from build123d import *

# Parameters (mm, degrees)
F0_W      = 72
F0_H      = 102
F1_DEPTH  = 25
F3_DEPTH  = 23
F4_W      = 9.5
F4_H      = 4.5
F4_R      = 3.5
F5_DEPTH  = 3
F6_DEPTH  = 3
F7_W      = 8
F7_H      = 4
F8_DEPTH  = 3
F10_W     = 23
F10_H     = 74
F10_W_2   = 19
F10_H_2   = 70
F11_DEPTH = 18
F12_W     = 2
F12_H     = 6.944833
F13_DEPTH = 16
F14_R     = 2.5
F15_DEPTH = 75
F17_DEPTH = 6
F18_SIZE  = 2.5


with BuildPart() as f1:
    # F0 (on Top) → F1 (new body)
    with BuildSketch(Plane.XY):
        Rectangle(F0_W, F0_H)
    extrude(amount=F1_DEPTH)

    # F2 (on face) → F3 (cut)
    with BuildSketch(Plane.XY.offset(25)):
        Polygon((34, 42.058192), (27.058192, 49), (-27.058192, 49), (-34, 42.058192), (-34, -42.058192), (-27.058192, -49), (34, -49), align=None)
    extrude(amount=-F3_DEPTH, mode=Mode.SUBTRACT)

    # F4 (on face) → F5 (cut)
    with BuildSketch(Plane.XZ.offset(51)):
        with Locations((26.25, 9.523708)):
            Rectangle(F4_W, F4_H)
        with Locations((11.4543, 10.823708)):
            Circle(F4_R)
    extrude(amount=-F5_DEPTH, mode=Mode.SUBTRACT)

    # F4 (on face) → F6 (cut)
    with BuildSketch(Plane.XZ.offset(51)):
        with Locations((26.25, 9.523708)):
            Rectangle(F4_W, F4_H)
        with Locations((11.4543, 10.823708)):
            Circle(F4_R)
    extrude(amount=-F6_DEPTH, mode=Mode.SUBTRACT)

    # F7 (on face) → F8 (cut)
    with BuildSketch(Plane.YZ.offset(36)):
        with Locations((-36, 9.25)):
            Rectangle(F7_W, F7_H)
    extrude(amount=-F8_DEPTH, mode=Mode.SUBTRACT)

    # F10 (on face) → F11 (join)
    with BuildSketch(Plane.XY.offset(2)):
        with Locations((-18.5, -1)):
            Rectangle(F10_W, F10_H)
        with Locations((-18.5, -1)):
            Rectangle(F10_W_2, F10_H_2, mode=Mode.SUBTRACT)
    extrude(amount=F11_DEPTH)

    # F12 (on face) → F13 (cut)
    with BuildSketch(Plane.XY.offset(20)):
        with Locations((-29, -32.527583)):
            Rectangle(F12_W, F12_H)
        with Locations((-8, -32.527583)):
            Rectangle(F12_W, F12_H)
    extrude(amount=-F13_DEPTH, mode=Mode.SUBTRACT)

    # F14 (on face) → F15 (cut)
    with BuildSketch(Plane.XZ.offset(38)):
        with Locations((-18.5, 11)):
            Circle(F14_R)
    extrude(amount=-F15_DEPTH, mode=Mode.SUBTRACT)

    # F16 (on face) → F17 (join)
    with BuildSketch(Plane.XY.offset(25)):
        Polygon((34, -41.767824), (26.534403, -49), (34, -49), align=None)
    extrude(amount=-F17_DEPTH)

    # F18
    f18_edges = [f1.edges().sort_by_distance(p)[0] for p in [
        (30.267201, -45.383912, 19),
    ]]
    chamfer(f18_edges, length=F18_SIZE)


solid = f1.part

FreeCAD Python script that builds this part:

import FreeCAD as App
import Part
import Sketcher
Q = App.Units.Quantity


def edges_at(feature, points):
    """Names of the edges that pass closest to the given points."""
    edges = feature.Shape.Edges
    near = lambda p: min(range(len(edges)), key=lambda i: edges[i].distToShape(Part.Vertex(*p))[0])
    return sorted({f"Edge{near(p) + 1}" for p in points})

doc = App.newDocument("Part")
params = doc.addObject("Spreadsheet::Sheet", "Params")
for row, (alias, value) in enumerate([
    ("sketch1_width", "72 mm"),
    ("sketch1_height", "102 mm"),
    ("pad1_length", "25 mm"),
    ("pocket1_length", "23 mm"),
    ("sketch3_diameter", "7 mm"),
    ("sketch3_width", "9.5 mm"),
    ("sketch3_height", "4.5 mm"),
    ("pocket2_length", "3 mm"),
    ("sketch4_diameter", "7 mm"),
    ("sketch4_width", "9.5 mm"),
    ("sketch4_height", "4.5 mm"),
    ("pocket3_length", "3 mm"),
    ("sketch5_width", "8 mm"),
    ("sketch5_height", "4 mm"),
    ("pocket4_length", "3 mm"),
    ("sketch6_width", "23 mm"),
    ("sketch6_width2", "19 mm"),
    ("sketch6_height", "74 mm"),
    ("sketch6_height2", "70 mm"),
    ("pad2_length", "18 mm"),
    ("sketch7_width", "2 mm"),
    ("pocket5_length", "16 mm"),
    ("sketch8_diameter", "5 mm"),
    ("pocket6_length", "75 mm"),
    ("pad3_length", "6 mm"),
    ("chamfer_size", "2.5 mm"),
], start=1):
    params.set(f"A{row}", alias)
    params.set(f"B{row}", "=" + value)
    params.setAlias(f"B{row}", alias)

body = doc.addObject("PartDesign::Body", "Body")

sketch1 = body.newObject("Sketcher::SketchObject", "Sketch")
sketch1.AttachmentSupport = (doc.getObject("XY_Plane"), [""])
sketch1.MapMode = "FlatFace"
sketch1.addGeometry(Part.LineSegment(App.Vector(-36, 51, 0), App.Vector(-36, -51, 0)), False)
sketch1.addGeometry(Part.LineSegment(App.Vector(-36, -51, 0), App.Vector(36, -51, 0)), False)
sketch1.addGeometry(Part.LineSegment(App.Vector(36, -51, 0), App.Vector(36, 51, 0)), False)
sketch1.addGeometry(Part.LineSegment(App.Vector(36, 51, 0), App.Vector(-36, 51, 0)), False)
sketch1.addConstraint(Sketcher.Constraint("Coincident", 0, 2, 1, 1))
sketch1.addConstraint(Sketcher.Constraint("Coincident", 1, 2, 2, 1))
sketch1.addConstraint(Sketcher.Constraint("Coincident", 2, 2, 3, 1))
sketch1.addConstraint(Sketcher.Constraint("Coincident", 3, 2, 0, 1))
sketch1.addConstraint(Sketcher.Constraint("Vertical", 0))
sketch1.addConstraint(Sketcher.Constraint("Horizontal", 1))
sketch1.addConstraint(Sketcher.Constraint("Vertical", 2))
sketch1.addConstraint(Sketcher.Constraint("Horizontal", 3))
sketch1.addConstraint(Sketcher.Constraint("Symmetric", 0, 2, 2, 2, -1, 1))
sketch1.addConstraint(Sketcher.Constraint("DistanceX", 1, 1, 1, 2, Q("72 mm")))
sketch1.addConstraint(Sketcher.Constraint("DistanceY", 0, 2, 0, 1, Q("102 mm")))
sketch1.setExpression("Constraints[9]", "Params.sketch1_width")
sketch1.setExpression("Constraints[10]", "Params.sketch1_height")
pad1 = body.newObject("PartDesign::Pad", "Pad")
pad1.Profile = sketch1
pad1.setExpression("Length", "Params.pad1_length")

sketch2 = body.newObject("Sketcher::SketchObject", "Sketch001")
sketch2.AttachmentSupport = (doc.getObject("XY_Plane"), [""])
sketch2.MapMode = "FlatFace"
sketch2.AttachmentOffset = App.Placement(App.Vector(0, 0, 25), App.Rotation())
sketch2.addGeometry(Part.LineSegment(App.Vector(34, 42, 0), App.Vector(27, 49, 0)), False)
sketch2.addGeometry(Part.LineSegment(App.Vector(27, 49, 0), App.Vector(-27, 49, 0)), False)
sketch2.addGeometry(Part.LineSegment(App.Vector(-27, 49, 0), App.Vector(-34, 42, 0)), False)
sketch2.addGeometry(Part.LineSegment(App.Vector(-34, 42, 0), App.Vector(-34, -42, 0)), False)
sketch2.addGeometry(Part.LineSegment(App.Vector(-34, -42, 0), App.Vector(-27, -49, 0)), False)
sketch2.addGeometry(Part.LineSegment(App.Vector(-27, -49, 0), App.Vector(34, -49, 0)), False)
sketch2.addGeometry(Part.LineSegment(App.Vector(34, -49, 0), App.Vector(34, 42, 0)), False)
sketch2.addConstraint(Sketcher.Constraint("Coincident", 0, 2, 1, 1))
sketch2.addConstraint(Sketcher.Constraint("Coincident", 1, 2, 2, 1))
sketch2.addConstraint(Sketcher.Constraint("Coincident", 2, 2, 3, 1))
sketch2.addConstraint(Sketcher.Constraint("Coincident", 3, 2, 4, 1))
sketch2.addConstraint(Sketcher.Constraint("Coincident", 4, 2, 5, 1))
sketch2.addConstraint(Sketcher.Constraint("Coincident", 5, 2, 6, 1))
sketch2.addConstraint(Sketcher.Constraint("Coincident", 6, 2, 0, 1))
sketch2.addConstraint(Sketcher.Constraint("Horizontal", 1))
sketch2.addConstraint(Sketcher.Constraint("Vertical", 3))
sketch2.addConstraint(Sketcher.Constraint("Horizontal", 5))
sketch2.addConstraint(Sketcher.Constraint("Vertical", 6))
sketch2.addConstraint(Sketcher.Constraint("Symmetric", 0, 2, 4, 2, -1, 1))
sketch2.addConstraint(Sketcher.Constraint("Symmetric", 3, 2, 6, 2, -1, 1))
sketch2.addConstraint(Sketcher.Constraint("Perpendicular", 0, 2))
sketch2.addConstraint(Sketcher.Constraint("Horizontal", 2, 2, 6, 2))
sketch2.addConstraint(Sketcher.Constraint("Vertical", 1, 2, 4, 2))
sketch2.addConstraint(Sketcher.Constraint("DistanceY", -1, 1, 0, 2, Q("49 mm")))
sketch2.addConstraint(Sketcher.Constraint("DistanceX", 2, 2, -1, 1, Q("34 mm")))
sketch2.addConstraint(Sketcher.Constraint("Distance", 0, Q("9.817199 mm")))
pocket1 = body.newObject("PartDesign::Pocket", "Pocket")
pocket1.Profile = sketch2
pocket1.setExpression("Length", "Params.pocket1_length")

sketch3 = body.newObject("Sketcher::SketchObject", "Sketch002")
sketch3.AttachmentSupport = (doc.getObject("XZ_Plane"), [""])
sketch3.MapMode = "FlatFace"
sketch3.AttachmentOffset = App.Placement(App.Vector(0, 0, 51), App.Rotation())
sketch3.addGeometry(Part.LineSegment(App.Vector(21.5, 11.8, 0), App.Vector(21.5, 7.3, 0)), False)
sketch3.addGeometry(Part.LineSegment(App.Vector(21.5, 7.3, 0), App.Vector(31, 7.3, 0)), False)
sketch3.addGeometry(Part.LineSegment(App.Vector(31, 7.3, 0), App.Vector(31, 11.8, 0)), False)
sketch3.addGeometry(Part.LineSegment(App.Vector(31, 11.8, 0), App.Vector(21.5, 11.8, 0)), False)
sketch3.addGeometry(Part.Circle(App.Vector(11.5, 10.8, 0), App.Vector(0, 0, 1), 3.5), False)
sketch3.addConstraint(Sketcher.Constraint("Coincident", 0, 2, 1, 1))
sketch3.addConstraint(Sketcher.Constraint("Coincident", 1, 2, 2, 1))
sketch3.addConstraint(Sketcher.Constraint("Coincident", 2, 2, 3, 1))
sketch3.addConstraint(Sketcher.Constraint("Coincident", 3, 2, 0, 1))
sketch3.addConstraint(Sketcher.Constraint("Vertical", 0))
sketch3.addConstraint(Sketcher.Constraint("Horizontal", 1))
sketch3.addConstraint(Sketcher.Constraint("Vertical", 2))
sketch3.addConstraint(Sketcher.Constraint("Horizontal", 3))
sketch3.addConstraint(Sketcher.Constraint("Diameter", 4, Q("7 mm")))
sketch3.addConstraint(Sketcher.Constraint("DistanceX", 1, 1, 1, 2, Q("9.5 mm")))
sketch3.addConstraint(Sketcher.Constraint("DistanceY", 0, 2, 0, 1, Q("4.5 mm")))
sketch3.addConstraint(Sketcher.Constraint("DistanceX", -1, 1, 1, 2, Q("31 mm")))
sketch3.addConstraint(Sketcher.Constraint("DistanceY", 0, 2, 4, 3, Q("3.55 mm")))
sketch3.addConstraint(Sketcher.Constraint("DistanceX", -1, 1, 4, 3, Q("11.4543 mm")))
sketch3.addConstraint(Sketcher.Constraint("DistanceY", -1, 1, 4, 3, Q("10.823708 mm")))
sketch3.setExpression("Constraints[8]", "Params.sketch3_diameter")
sketch3.setExpression("Constraints[9]", "Params.sketch3_width")
sketch3.setExpression("Constraints[10]", "Params.sketch3_height")
pocket2 = body.newObject("PartDesign::Pocket", "Pocket001")
pocket2.Profile = sketch3
pocket2.setExpression("Length", "Params.pocket2_length")

sketch4 = body.newObject("Sketcher::SketchObject", "Sketch003")
sketch4.AttachmentSupport = (doc.getObject("XZ_Plane"), [""])
sketch4.MapMode = "FlatFace"
sketch4.AttachmentOffset = App.Placement(App.Vector(0, 0, 51), App.Rotation())
sketch4.addGeometry(Part.LineSegment(App.Vector(21.5, 11.8, 0), App.Vector(21.5, 7.3, 0)), False)
sketch4.addGeometry(Part.LineSegment(App.Vector(21.5, 7.3, 0), App.Vector(31, 7.3, 0)), False)
sketch4.addGeometry(Part.LineSegment(App.Vector(31, 7.3, 0), App.Vector(31, 11.8, 0)), False)
sketch4.addGeometry(Part.LineSegment(App.Vector(31, 11.8, 0), App.Vector(21.5, 11.8, 0)), False)
sketch4.addGeometry(Part.Circle(App.Vector(11.5, 10.8, 0), App.Vector(0, 0, 1), 3.5), False)
sketch4.addConstraint(Sketcher.Constraint("Coincident", 0, 2, 1, 1))
sketch4.addConstraint(Sketcher.Constraint("Coincident", 1, 2, 2, 1))
sketch4.addConstraint(Sketcher.Constraint("Coincident", 2, 2, 3, 1))
sketch4.addConstraint(Sketcher.Constraint("Coincident", 3, 2, 0, 1))
sketch4.addConstraint(Sketcher.Constraint("Vertical", 0))
sketch4.addConstraint(Sketcher.Constraint("Horizontal", 1))
sketch4.addConstraint(Sketcher.Constraint("Vertical", 2))
sketch4.addConstraint(Sketcher.Constraint("Horizontal", 3))
sketch4.addConstraint(Sketcher.Constraint("Diameter", 4, Q("7 mm")))
sketch4.addConstraint(Sketcher.Constraint("DistanceX", 1, 1, 1, 2, Q("9.5 mm")))
sketch4.addConstraint(Sketcher.Constraint("DistanceY", 0, 2, 0, 1, Q("4.5 mm")))
sketch4.addConstraint(Sketcher.Constraint("DistanceX", -1, 1, 1, 2, Q("31 mm")))
sketch4.addConstraint(Sketcher.Constraint("DistanceY", 0, 2, 4, 3, Q("3.55 mm")))
sketch4.addConstraint(Sketcher.Constraint("DistanceX", -1, 1, 4, 3, Q("11.4543 mm")))
sketch4.addConstraint(Sketcher.Constraint("DistanceY", -1, 1, 4, 3, Q("10.823708 mm")))
sketch4.setExpression("Constraints[8]", "Params.sketch4_diameter")
sketch4.setExpression("Constraints[9]", "Params.sketch4_width")
sketch4.setExpression("Constraints[10]", "Params.sketch4_height")
pocket3 = body.newObject("PartDesign::Pocket", "Pocket002")
pocket3.Profile = sketch4
pocket3.setExpression("Length", "Params.pocket3_length")

sketch5 = body.newObject("Sketcher::SketchObject", "Sketch004")
sketch5.AttachmentSupport = (doc.getObject("YZ_Plane"), [""])
sketch5.MapMode = "FlatFace"
sketch5.AttachmentOffset = App.Placement(App.Vector(0, 0, 36), App.Rotation())
sketch5.addGeometry(Part.LineSegment(App.Vector(-40, 11.2, 0), App.Vector(-40, 7.2, 0)), False)
sketch5.addGeometry(Part.LineSegment(App.Vector(-40, 7.2, 0), App.Vector(-32, 7.2, 0)), False)
sketch5.addGeometry(Part.LineSegment(App.Vector(-32, 7.2, 0), App.Vector(-32, 11.2, 0)), False)
sketch5.addGeometry(Part.LineSegment(App.Vector(-32, 11.2, 0), App.Vector(-40, 11.2, 0)), False)
sketch5.addConstraint(Sketcher.Constraint("Coincident", 0, 2, 1, 1))
sketch5.addConstraint(Sketcher.Constraint("Coincident", 1, 2, 2, 1))
sketch5.addConstraint(Sketcher.Constraint("Coincident", 2, 2, 3, 1))
sketch5.addConstraint(Sketcher.Constraint("Coincident", 3, 2, 0, 1))
sketch5.addConstraint(Sketcher.Constraint("Vertical", 0))
sketch5.addConstraint(Sketcher.Constraint("Horizontal", 1))
sketch5.addConstraint(Sketcher.Constraint("Vertical", 2))
sketch5.addConstraint(Sketcher.Constraint("Horizontal", 3))
sketch5.addConstraint(Sketcher.Constraint("DistanceX", 1, 1, 1, 2, Q("8 mm")))
sketch5.addConstraint(Sketcher.Constraint("DistanceY", 0, 2, 0, 1, Q("4 mm")))
sketch5.addConstraint(Sketcher.Constraint("DistanceX", 0, 2, -1, 1, Q("40 mm")))
sketch5.addConstraint(Sketcher.Constraint("DistanceY", -1, 1, 0, 2, Q("7.25 mm")))
sketch5.setExpression("Constraints[8]", "Params.sketch5_width")
sketch5.setExpression("Constraints[9]", "Params.sketch5_height")
pocket4 = body.newObject("PartDesign::Pocket", "Pocket003")
pocket4.Profile = sketch5
pocket4.setExpression("Length", "Params.pocket4_length")

sketch6 = body.newObject("Sketcher::SketchObject", "Sketch005")
sketch6.AttachmentSupport = (doc.getObject("XY_Plane"), [""])
sketch6.MapMode = "FlatFace"
sketch6.AttachmentOffset = App.Placement(App.Vector(0, 0, 2), App.Rotation())
sketch6.addGeometry(Part.LineSegment(App.Vector(-30, 36, 0), App.Vector(-30, -38, 0)), False)
sketch6.addGeometry(Part.LineSegment(App.Vector(-30, -38, 0), App.Vector(-7, -38, 0)), False)
sketch6.addGeometry(Part.LineSegment(App.Vector(-7, -38, 0), App.Vector(-7, 36, 0)), False)
sketch6.addGeometry(Part.LineSegment(App.Vector(-7, 36, 0), App.Vector(-30, 36, 0)), False)
sketch6.addGeometry(Part.LineSegment(App.Vector(-9, -36, 0), App.Vector(-28, -36, 0)), False)
sketch6.addGeometry(Part.LineSegment(App.Vector(-28, -36, 0), App.Vector(-28, 34, 0)), False)
sketch6.addGeometry(Part.LineSegment(App.Vector(-28, 34, 0), App.Vector(-9, 34, 0)), False)
sketch6.addGeometry(Part.LineSegment(App.Vector(-9, 34, 0), App.Vector(-9, -36, 0)), False)
sketch6.addConstraint(Sketcher.Constraint("Coincident", 0, 2, 1, 1))
sketch6.addConstraint(Sketcher.Constraint("Coincident", 1, 2, 2, 1))
sketch6.addConstraint(Sketcher.Constraint("Coincident", 2, 2, 3, 1))
sketch6.addConstraint(Sketcher.Constraint("Coincident", 3, 2, 0, 1))
sketch6.addConstraint(Sketcher.Constraint("Coincident", 4, 2, 5, 1))
sketch6.addConstraint(Sketcher.Constraint("Coincident", 5, 2, 6, 1))
sketch6.addConstraint(Sketcher.Constraint("Coincident", 6, 2, 7, 1))
sketch6.addConstraint(Sketcher.Constraint("Coincident", 7, 2, 4, 1))
sketch6.addConstraint(Sketcher.Constraint("Vertical", 0))
sketch6.addConstraint(Sketcher.Constraint("Horizontal", 1))
sketch6.addConstraint(Sketcher.Constraint("Vertical", 2))
sketch6.addConstraint(Sketcher.Constraint("Horizontal", 3))
sketch6.addConstraint(Sketcher.Constraint("Horizontal", 4))
sketch6.addConstraint(Sketcher.Constraint("Vertical", 5))
sketch6.addConstraint(Sketcher.Constraint("Horizontal", 6))
sketch6.addConstraint(Sketcher.Constraint("Vertical", 7))
sketch6.addConstraint(Sketcher.Constraint("DistanceX", 1, 1, 1, 2, Q("23 mm")))
sketch6.addConstraint(Sketcher.Constraint("DistanceX", 4, 2, 4, 1, Q("19 mm")))
sketch6.addConstraint(Sketcher.Constraint("DistanceY", 0, 2, 0, 1, Q("74 mm")))
sketch6.addConstraint(Sketcher.Constraint("DistanceY", 5, 1, 5, 2, Q("70 mm")))
sketch6.addConstraint(Sketcher.Constraint("DistanceX", 0, 2, -1, 1, Q("30 mm")))
sketch6.addConstraint(Sketcher.Constraint("DistanceY", 0, 2, -1, 1, Q("38 mm")))
sketch6.addConstraint(Sketcher.Constraint("DistanceX", 4, 2, -1, 1, Q("28 mm")))
sketch6.addConstraint(Sketcher.Constraint("DistanceY", 4, 2, -1, 1, Q("36 mm")))
sketch6.setExpression("Constraints[16]", "Params.sketch6_width")
sketch6.setExpression("Constraints[17]", "Params.sketch6_width2")
sketch6.setExpression("Constraints[18]", "Params.sketch6_height")
sketch6.setExpression("Constraints[19]", "Params.sketch6_height2")
pad2 = body.newObject("PartDesign::Pad", "Pad001")
pad2.Profile = sketch6
pad2.setExpression("Length", "Params.pad2_length")

sketch7 = body.newObject("Sketcher::SketchObject", "Sketch006")
sketch7.AttachmentSupport = (doc.getObject("XY_Plane"), [""])
sketch7.MapMode = "FlatFace"
sketch7.AttachmentOffset = App.Placement(App.Vector(0, 0, 20), App.Rotation())
sketch7.addGeometry(Part.LineSegment(App.Vector(-30, -29.1, 0), App.Vector(-30, -36, 0)), False)
sketch7.addGeometry(Part.LineSegment(App.Vector(-30, -36, 0), App.Vector(-28, -36, 0)), False)
sketch7.addGeometry(Part.LineSegment(App.Vector(-28, -36, 0), App.Vector(-28, -29.1, 0)), False)
sketch7.addGeometry(Part.LineSegment(App.Vector(-28, -29.1, 0), App.Vector(-30, -29.1, 0)), False)
sketch7.addGeometry(Part.LineSegment(App.Vector(-9, -29.1, 0), App.Vector(-9, -36, 0)), False)
sketch7.addGeometry(Part.LineSegment(App.Vector(-9, -36, 0), App.Vector(-7, -36, 0)), False)
sketch7.addGeometry(Part.LineSegment(App.Vector(-7, -36, 0), App.Vector(-7, -29.1, 0)), False)
sketch7.addGeometry(Part.LineSegment(App.Vector(-7, -29.1, 0), App.Vector(-9, -29.1, 0)), False)
sketch7.addConstraint(Sketcher.Constraint("Coincident", 0, 2, 1, 1))
sketch7.addConstraint(Sketcher.Constraint("Coincident", 1, 2, 2, 1))
sketch7.addConstraint(Sketcher.Constraint("Coincident", 2, 2, 3, 1))
sketch7.addConstraint(Sketcher.Constraint("Coincident", 3, 2, 0, 1))
sketch7.addConstraint(Sketcher.Constraint("Coincident", 4, 2, 5, 1))
sketch7.addConstraint(Sketcher.Constraint("Coincident", 5, 2, 6, 1))
sketch7.addConstraint(Sketcher.Constraint("Coincident", 6, 2, 7, 1))
sketch7.addConstraint(Sketcher.Constraint("Coincident", 7, 2, 4, 1))
sketch7.addConstraint(Sketcher.Constraint("Vertical", 0))
sketch7.addConstraint(Sketcher.Constraint("Horizontal", 1))
sketch7.addConstraint(Sketcher.Constraint("Vertical", 2))
sketch7.addConstraint(Sketcher.Constraint("Horizontal", 3))
sketch7.addConstraint(Sketcher.Constraint("Vertical", 4))
sketch7.addConstraint(Sketcher.Constraint("Horizontal", 5))
sketch7.addConstraint(Sketcher.Constraint("Vertical", 6))
sketch7.addConstraint(Sketcher.Constraint("Horizontal", 7))
sketch7.addConstraint(Sketcher.Constraint("Horizontal", 1, 2, 4, 2))
sketch7.addConstraint(Sketcher.Constraint("Horizontal", 3, 2, 6, 2))
sketch7.addConstraint(Sketcher.Constraint("Equal", 3, 5))
sketch7.addConstraint(Sketcher.Constraint("DistanceX", 1, 1, 1, 2, Q("2 mm")))
sketch7.addConstraint(Sketcher.Constraint("DistanceX", 0, 2, -1, 1, Q("30 mm")))
sketch7.addConstraint(Sketcher.Constraint("DistanceY", 0, 2, -1, 1, Q("36 mm")))
sketch7.addConstraint(Sketcher.Constraint("DistanceX", 4, 2, -1, 1, Q("9 mm")))
sketch7.addConstraint(Sketcher.Constraint("DistanceY", 0, 2, 0, 1, Q("6.944833 mm")))
sketch7.setExpression("Constraints[19]", "Params.sketch7_width")
pocket5 = body.newObject("PartDesign::Pocket", "Pocket004")
pocket5.Profile = sketch7
pocket5.setExpression("Length", "Params.pocket5_length")

sketch8 = body.newObject("Sketcher::SketchObject", "Sketch007")
sketch8.AttachmentSupport = (doc.getObject("XZ_Plane"), [""])
sketch8.MapMode = "FlatFace"
sketch8.AttachmentOffset = App.Placement(App.Vector(0, 0, 38), App.Rotation())
sketch8.addGeometry(Part.Circle(App.Vector(-18.5, 11, 0), App.Vector(0, 0, 1), 2.5), False)
sketch8.addConstraint(Sketcher.Constraint("Diameter", 0, Q("5 mm")))
sketch8.addConstraint(Sketcher.Constraint("DistanceY", -1, 1, 0, 3, Q("11 mm")))
sketch8.addConstraint(Sketcher.Constraint("DistanceX", 0, 3, -1, 1, Q("18.5 mm")))
sketch8.setExpression("Constraints[0]", "Params.sketch8_diameter")
pocket6 = body.newObject("PartDesign::Pocket", "Pocket005")
pocket6.Profile = sketch8
pocket6.setExpression("Length", "Params.pocket6_length")

sketch9 = body.newObject("Sketcher::SketchObject", "Sketch008")
sketch9.AttachmentSupport = (doc.getObject("XY_Plane"), [""])
sketch9.MapMode = "FlatFace"
sketch9.AttachmentOffset = App.Placement(App.Vector(0, 0, 25), App.Rotation())
sketch9.addGeometry(Part.LineSegment(App.Vector(34, -42, 0), App.Vector(27, -49, 0)), False)
sketch9.addGeometry(Part.LineSegment(App.Vector(27, -49, 0), App.Vector(34, -49, 0)), False)
sketch9.addGeometry(Part.LineSegment(App.Vector(34, -49, 0), App.Vector(34, -42, 0)), False)
sketch9.addConstraint(Sketcher.Constraint("Coincident", 0, 2, 1, 1))
sketch9.addConstraint(Sketcher.Constraint("Coincident", 1, 2, 2, 1))
sketch9.addConstraint(Sketcher.Constraint("Coincident", 2, 2, 0, 1))
sketch9.addConstraint(Sketcher.Constraint("Horizontal", 1))
sketch9.addConstraint(Sketcher.Constraint("Vertical", 2))
sketch9.addConstraint(Sketcher.Constraint("DistanceY", 0, 2, -1, 1, Q("49 mm")))
sketch9.addConstraint(Sketcher.Constraint("DistanceX", -1, 1, 1, 2, Q("34 mm")))
sketch9.addConstraint(Sketcher.Constraint("DistanceX", 1, 1, 1, 2, Q("7.465597 mm")))
sketch9.addConstraint(Sketcher.Constraint("DistanceY", 2, 1, 2, 2, Q("7.232176 mm")))
pad3 = body.newObject("PartDesign::Pad", "Pad002")
pad3.Profile = sketch9
pad3.setExpression("Length", "Params.pad3_length")
pad3.Reversed = True
doc.recompute()

chamfer = body.newObject("PartDesign::Chamfer", "Chamfer")
chamfer.Base = (pad3, edges_at(pad3, [(30.267, -45.384, 19)]))
chamfer.setExpression("Size", "Params.chamfer_size")

doc.recompute()
